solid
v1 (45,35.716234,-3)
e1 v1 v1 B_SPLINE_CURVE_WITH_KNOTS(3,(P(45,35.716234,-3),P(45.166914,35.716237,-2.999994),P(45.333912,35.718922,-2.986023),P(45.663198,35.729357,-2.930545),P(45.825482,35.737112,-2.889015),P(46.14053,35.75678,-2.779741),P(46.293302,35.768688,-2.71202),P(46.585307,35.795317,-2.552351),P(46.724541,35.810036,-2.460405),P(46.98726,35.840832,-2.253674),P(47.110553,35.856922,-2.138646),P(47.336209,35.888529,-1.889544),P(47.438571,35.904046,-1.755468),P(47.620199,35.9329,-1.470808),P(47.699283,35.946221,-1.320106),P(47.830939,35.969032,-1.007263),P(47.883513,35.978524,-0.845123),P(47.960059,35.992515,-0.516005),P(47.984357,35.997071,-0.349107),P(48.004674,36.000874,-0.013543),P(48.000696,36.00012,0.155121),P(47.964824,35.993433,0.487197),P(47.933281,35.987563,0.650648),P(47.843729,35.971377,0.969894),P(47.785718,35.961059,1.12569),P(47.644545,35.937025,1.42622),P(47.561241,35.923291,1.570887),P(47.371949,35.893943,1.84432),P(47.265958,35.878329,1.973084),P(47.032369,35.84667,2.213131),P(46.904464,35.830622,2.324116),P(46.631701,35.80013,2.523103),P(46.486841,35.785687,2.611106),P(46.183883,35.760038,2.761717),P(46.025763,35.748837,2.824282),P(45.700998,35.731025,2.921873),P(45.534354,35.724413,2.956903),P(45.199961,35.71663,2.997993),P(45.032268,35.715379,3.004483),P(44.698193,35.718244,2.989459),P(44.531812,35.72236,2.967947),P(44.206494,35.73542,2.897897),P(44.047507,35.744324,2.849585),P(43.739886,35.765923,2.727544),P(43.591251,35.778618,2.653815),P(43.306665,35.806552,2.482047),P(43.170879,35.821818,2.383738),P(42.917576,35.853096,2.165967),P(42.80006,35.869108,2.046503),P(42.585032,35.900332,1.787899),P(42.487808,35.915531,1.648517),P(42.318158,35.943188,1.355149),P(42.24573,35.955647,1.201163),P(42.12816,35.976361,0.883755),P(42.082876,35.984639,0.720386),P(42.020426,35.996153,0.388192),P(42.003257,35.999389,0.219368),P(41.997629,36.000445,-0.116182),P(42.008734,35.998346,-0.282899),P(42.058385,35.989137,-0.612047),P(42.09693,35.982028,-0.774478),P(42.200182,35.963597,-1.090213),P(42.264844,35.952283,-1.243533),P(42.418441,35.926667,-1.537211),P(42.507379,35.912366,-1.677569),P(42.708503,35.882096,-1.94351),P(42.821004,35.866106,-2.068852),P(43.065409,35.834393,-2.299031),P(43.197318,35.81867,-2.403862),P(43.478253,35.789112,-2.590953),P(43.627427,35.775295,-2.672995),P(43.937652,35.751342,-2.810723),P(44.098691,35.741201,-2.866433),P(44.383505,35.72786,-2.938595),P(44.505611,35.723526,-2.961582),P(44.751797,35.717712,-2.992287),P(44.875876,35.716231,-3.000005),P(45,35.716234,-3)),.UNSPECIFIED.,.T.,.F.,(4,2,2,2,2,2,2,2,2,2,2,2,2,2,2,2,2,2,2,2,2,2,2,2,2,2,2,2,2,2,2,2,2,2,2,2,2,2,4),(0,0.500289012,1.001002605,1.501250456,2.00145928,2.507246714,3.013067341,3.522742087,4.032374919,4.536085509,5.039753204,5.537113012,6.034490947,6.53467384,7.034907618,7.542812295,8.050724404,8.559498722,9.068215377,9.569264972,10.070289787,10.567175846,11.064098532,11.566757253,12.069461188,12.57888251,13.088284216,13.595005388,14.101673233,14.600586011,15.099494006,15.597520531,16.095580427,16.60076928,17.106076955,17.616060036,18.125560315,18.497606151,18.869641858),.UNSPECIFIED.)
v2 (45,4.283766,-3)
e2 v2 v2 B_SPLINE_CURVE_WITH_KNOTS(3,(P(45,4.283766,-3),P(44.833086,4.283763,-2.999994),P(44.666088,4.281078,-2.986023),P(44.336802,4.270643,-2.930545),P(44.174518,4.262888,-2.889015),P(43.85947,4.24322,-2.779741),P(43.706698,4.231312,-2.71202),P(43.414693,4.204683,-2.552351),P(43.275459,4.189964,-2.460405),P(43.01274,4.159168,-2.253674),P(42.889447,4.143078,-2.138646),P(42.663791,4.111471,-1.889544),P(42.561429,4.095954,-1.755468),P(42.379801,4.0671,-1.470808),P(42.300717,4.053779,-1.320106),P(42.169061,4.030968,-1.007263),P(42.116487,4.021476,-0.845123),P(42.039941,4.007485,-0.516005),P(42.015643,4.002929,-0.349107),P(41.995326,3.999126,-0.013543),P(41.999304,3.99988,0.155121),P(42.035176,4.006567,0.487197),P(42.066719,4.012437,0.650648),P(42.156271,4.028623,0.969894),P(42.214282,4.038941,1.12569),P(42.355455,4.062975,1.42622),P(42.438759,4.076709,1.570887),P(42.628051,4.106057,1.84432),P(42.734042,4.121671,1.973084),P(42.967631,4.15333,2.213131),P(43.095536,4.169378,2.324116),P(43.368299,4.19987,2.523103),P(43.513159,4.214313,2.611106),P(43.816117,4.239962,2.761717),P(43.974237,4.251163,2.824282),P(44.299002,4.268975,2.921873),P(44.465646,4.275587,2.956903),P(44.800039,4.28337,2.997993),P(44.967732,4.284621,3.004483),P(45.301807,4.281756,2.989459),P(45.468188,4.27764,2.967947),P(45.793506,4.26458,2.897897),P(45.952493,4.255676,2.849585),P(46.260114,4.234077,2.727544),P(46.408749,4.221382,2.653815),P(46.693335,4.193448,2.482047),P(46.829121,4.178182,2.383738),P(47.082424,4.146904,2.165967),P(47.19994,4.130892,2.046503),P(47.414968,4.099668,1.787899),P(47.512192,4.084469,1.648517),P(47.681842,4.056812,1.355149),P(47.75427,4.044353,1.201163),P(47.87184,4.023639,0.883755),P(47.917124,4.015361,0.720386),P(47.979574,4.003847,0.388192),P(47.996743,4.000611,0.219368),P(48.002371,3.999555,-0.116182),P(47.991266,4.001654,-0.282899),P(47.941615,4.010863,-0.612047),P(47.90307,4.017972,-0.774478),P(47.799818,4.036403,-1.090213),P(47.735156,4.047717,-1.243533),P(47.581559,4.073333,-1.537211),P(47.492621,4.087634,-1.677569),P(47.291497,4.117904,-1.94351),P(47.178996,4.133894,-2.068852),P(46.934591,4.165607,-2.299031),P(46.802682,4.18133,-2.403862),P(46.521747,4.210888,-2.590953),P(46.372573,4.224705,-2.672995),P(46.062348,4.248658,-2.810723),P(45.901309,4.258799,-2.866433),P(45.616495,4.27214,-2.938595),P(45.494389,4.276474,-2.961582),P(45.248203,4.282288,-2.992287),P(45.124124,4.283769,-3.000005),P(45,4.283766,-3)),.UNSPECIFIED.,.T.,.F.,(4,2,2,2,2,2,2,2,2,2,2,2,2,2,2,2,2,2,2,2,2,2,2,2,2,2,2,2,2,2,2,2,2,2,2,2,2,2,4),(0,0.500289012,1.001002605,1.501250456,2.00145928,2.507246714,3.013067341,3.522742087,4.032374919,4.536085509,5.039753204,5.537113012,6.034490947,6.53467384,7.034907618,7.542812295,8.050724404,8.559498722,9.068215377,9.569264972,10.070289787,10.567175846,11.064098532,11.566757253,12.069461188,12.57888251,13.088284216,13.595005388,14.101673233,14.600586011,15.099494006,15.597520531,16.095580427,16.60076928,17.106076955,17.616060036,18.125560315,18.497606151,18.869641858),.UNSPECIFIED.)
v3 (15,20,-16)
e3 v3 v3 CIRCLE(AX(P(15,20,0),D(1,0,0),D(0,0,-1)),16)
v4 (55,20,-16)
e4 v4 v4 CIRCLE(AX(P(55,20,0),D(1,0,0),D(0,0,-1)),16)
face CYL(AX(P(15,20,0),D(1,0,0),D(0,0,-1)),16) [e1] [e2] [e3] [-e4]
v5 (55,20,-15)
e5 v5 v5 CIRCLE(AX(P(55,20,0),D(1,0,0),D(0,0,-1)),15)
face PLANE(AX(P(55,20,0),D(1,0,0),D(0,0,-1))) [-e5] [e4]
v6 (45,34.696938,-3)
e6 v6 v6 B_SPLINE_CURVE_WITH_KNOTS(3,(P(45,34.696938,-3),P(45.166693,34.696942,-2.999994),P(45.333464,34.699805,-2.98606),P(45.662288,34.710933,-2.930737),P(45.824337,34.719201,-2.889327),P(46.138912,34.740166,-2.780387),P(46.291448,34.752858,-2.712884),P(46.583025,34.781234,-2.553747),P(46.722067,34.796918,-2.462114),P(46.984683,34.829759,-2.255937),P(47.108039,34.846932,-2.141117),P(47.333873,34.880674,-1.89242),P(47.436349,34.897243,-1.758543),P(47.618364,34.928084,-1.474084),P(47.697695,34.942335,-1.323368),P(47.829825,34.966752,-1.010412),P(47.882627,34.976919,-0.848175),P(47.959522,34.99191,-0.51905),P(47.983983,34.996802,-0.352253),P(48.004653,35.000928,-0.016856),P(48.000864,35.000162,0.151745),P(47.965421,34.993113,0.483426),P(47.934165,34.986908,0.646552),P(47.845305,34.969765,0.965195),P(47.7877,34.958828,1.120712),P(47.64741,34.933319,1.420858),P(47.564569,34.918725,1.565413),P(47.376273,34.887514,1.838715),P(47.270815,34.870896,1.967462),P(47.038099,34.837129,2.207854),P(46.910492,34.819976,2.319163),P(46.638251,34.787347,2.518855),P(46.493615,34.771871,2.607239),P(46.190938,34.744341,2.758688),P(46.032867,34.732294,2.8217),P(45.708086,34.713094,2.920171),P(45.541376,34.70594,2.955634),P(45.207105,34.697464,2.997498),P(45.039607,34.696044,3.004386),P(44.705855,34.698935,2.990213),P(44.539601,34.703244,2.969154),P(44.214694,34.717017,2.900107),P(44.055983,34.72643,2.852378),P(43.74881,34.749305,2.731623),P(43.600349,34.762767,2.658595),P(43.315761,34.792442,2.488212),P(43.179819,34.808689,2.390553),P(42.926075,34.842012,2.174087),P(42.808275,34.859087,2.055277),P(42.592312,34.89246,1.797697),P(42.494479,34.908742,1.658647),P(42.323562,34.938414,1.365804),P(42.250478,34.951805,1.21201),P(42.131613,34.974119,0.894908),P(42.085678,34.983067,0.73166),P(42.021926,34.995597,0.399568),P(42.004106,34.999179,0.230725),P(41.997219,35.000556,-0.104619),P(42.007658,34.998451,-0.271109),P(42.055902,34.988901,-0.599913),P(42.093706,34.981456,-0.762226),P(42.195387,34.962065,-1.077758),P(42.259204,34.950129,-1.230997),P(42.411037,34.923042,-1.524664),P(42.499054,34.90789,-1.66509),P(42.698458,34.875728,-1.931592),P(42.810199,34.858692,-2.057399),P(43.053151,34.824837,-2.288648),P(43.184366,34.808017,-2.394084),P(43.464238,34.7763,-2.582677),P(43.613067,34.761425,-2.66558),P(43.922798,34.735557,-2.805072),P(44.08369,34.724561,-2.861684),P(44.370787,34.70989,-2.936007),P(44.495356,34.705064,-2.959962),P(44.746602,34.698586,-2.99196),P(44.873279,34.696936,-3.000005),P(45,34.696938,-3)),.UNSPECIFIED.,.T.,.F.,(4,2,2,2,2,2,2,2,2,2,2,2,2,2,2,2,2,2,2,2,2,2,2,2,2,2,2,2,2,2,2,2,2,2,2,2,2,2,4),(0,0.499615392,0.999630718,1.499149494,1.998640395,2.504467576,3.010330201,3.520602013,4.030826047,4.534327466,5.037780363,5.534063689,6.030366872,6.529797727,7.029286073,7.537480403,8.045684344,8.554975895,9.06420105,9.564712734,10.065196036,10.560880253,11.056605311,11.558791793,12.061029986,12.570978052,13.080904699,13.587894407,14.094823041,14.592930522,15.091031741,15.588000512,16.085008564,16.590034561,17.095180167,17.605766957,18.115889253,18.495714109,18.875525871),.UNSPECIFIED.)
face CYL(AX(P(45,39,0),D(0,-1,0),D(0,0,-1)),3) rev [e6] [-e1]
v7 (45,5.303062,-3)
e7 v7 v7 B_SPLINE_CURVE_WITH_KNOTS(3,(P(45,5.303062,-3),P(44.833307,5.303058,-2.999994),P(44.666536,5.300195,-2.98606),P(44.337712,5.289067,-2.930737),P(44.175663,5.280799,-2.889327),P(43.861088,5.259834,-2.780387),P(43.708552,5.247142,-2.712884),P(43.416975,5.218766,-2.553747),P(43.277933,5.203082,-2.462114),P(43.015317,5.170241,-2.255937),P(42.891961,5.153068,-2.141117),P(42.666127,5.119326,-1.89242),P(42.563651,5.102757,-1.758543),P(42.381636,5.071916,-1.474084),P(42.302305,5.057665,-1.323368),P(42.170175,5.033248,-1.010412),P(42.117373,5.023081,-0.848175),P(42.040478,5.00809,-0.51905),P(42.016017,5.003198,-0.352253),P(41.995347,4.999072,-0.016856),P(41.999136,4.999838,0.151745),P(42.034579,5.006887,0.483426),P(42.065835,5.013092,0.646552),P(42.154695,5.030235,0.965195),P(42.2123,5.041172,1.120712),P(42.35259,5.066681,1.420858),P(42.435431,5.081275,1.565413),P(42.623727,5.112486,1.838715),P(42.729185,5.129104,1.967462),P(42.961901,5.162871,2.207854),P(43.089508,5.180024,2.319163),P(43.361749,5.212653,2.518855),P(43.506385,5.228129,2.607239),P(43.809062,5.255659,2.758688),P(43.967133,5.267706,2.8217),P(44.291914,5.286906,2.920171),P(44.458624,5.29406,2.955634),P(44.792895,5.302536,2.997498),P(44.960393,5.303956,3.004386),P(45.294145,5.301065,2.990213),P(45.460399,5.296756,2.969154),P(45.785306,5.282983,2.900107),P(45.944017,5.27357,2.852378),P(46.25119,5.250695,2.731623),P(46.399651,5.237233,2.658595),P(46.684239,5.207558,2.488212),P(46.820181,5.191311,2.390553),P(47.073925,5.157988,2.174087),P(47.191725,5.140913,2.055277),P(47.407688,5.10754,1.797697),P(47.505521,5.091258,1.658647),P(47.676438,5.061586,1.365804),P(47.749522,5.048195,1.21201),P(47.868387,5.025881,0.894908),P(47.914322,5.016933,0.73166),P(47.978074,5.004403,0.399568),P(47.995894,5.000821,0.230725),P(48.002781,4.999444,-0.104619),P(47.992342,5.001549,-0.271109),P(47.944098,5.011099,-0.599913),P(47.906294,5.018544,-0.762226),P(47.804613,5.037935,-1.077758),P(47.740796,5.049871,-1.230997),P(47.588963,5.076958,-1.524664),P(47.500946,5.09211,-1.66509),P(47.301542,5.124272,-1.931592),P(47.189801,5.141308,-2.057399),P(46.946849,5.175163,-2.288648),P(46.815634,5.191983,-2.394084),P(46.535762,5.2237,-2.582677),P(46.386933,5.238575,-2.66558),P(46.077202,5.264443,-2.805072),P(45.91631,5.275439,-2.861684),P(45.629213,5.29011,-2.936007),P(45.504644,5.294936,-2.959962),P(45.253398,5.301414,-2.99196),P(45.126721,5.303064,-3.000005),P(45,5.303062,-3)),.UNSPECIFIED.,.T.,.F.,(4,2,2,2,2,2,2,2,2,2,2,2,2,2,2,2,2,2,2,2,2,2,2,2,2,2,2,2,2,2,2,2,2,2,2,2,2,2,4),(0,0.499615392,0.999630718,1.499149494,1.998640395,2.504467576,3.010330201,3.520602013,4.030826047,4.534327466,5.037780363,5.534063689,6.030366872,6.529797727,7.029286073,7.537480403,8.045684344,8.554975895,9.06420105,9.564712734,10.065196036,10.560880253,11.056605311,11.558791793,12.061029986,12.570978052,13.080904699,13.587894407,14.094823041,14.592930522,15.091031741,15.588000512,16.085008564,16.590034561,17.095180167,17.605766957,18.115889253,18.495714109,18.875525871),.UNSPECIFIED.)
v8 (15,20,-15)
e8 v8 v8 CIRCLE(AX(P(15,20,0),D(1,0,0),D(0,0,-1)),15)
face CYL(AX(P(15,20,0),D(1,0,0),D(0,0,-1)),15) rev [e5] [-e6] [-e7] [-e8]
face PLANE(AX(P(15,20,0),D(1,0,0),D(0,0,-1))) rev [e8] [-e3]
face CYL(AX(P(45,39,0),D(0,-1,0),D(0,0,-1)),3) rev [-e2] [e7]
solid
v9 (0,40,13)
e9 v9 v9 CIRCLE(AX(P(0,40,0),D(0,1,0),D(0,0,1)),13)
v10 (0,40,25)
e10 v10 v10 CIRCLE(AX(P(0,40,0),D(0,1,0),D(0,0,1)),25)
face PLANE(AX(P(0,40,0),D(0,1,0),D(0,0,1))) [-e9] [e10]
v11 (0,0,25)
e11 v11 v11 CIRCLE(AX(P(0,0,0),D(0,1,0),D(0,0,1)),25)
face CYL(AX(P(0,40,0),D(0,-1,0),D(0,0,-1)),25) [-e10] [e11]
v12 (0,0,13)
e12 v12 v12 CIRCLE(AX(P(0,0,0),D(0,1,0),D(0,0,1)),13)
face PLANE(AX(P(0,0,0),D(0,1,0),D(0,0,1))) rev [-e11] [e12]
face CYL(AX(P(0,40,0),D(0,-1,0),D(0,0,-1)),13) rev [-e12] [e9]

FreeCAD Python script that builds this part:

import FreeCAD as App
import Part
import Sketcher
from FreeCAD import Vector

doc = App.newDocument("Part")
params = doc.addObject("Spreadsheet::Sheet", "Params")
for row, (alias, value) in enumerate([
    ("sketch1_diameter", "50 mm"),
    ("sketch1_diameter2", "26 mm"),
    ("pad1_length", "40 mm"),
    ("sketch2_diameter", "32 mm"),
    ("sketch2_diameter2", "30 mm"),
    ("pad2_length", "40 mm"),
    ("sketch3_diameter", "6 mm"),
    ("pocket1_length", "39 mm"),
], start=1):
    params.set(f"A{row}", alias)
    params.set(f"B{row}", "=" + value)
    params.setAlias(f"B{row}", alias)

body = doc.addObject("PartDesign::Body", "Body")

sketch1 = body.newObject("Sketcher::SketchObject", "Sketch")
sketch1.AttachmentSupport = (doc.getObject("XZ_Plane"), [""])
sketch1.MapMode = "FlatFace"
sketch1.addGeometry(Part.Circle(Vector(0, 0, 0), Vector(0, 0, 1), 25), False)
sketch1.addGeometry(Part.Circle(Vector(0, 0, 0), Vector(0, 0, 1), 13), False)
sketch1.addConstraint(Sketcher.Constraint("Coincident", 0, 3, -1, 1))
sketch1.addConstraint(Sketcher.Constraint("Coincident", 1, 3, -1, 1))
sketch1.addConstraint(Sketcher.Constraint("Diameter", 0, 50.0))
sketch1.addConstraint(Sketcher.Constraint("Diameter", 1, 26.0))
sketch1.setExpression("Constraints[2]", "Params.sketch1_diameter")
sketch1.setExpression("Constraints[3]", "Params.sketch1_diameter2")
pad1 = body.newObject("PartDesign::Pad", "Pad")
pad1.Profile = sketch1
pad1.setExpression("Length", "Params.pad1_length")
pad1.Reversed = True
body2 = doc.addObject("PartDesign::Body", "Body001")

sketch2 = body2.newObject("Sketcher::SketchObject", "Sketch001")
sketch2.AttachmentSupport = (doc.getObject("YZ_Plane001"), [""])
sketch2.MapMode = "FlatFace"
sketch2.AttachmentOffset = App.Placement(Vector(0, 0, 55), App.Rotation())
sketch2.addGeometry(Part.Circle(Vector(20, 0, 0), Vector(0, 0, 1), 16), False)
sketch2.addGeometry(Part.Circle(Vector(20, 0, 0), Vector(0, 0, 1), 15), False)
sketch2.addConstraint(Sketcher.Constraint("Coincident", 1, 3, 0, 3))
sketch2.addConstraint(Sketcher.Constraint("PointOnObject", 0, 3, -1))
sketch2.addConstraint(Sketcher.Constraint("Diameter", 0, 32.0))
sketch2.addConstraint(Sketcher.Constraint("Diameter", 1, 30.0))
sketch2.addConstraint(Sketcher.Constraint("DistanceX", -1, 1, 0, 3, 20.0))
sketch2.setExpression("Constraints[2]", "Params.sketch2_diameter")
sketch2.setExpression("Constraints[3]", "Params.sketch2_diameter2")
pad2 = body2.newObject("PartDesign::Pad", "Pad001")
pad2.Profile = sketch2
pad2.setExpression("Length", "Params.pad2_length")
pad2.Reversed = True

sketch3 = body2.newObject("Sketcher::SketchObject", "Sketch002")
sketch3.AttachmentSupport = (doc.getObject("XZ_Plane001"), [""])
sketch3.MapMode = "FlatFace"
sketch3.addGeometry(Part.Circle(Vector(45, 0, 0), Vector(0, 0, 1), 3), False)
sketch3.addConstraint(Sketcher.Constraint("PointOnObject", 0, 3, -1))
sketch3.addConstraint(Sketcher.Constraint("Diameter", 0, 6.0))
sketch3.addConstraint(Sketcher.Constraint("DistanceX", -1, 1, 0, 3, 45.0))
sketch3.setExpression("Constraints[1]", "Params.sketch3_diameter")
pocket1 = body2.newObject("PartDesign::Pocket", "Pocket")
pocket1.Profile = sketch3
pocket1.setExpression("Length", "Params.pocket1_length")

doc.recompute()
